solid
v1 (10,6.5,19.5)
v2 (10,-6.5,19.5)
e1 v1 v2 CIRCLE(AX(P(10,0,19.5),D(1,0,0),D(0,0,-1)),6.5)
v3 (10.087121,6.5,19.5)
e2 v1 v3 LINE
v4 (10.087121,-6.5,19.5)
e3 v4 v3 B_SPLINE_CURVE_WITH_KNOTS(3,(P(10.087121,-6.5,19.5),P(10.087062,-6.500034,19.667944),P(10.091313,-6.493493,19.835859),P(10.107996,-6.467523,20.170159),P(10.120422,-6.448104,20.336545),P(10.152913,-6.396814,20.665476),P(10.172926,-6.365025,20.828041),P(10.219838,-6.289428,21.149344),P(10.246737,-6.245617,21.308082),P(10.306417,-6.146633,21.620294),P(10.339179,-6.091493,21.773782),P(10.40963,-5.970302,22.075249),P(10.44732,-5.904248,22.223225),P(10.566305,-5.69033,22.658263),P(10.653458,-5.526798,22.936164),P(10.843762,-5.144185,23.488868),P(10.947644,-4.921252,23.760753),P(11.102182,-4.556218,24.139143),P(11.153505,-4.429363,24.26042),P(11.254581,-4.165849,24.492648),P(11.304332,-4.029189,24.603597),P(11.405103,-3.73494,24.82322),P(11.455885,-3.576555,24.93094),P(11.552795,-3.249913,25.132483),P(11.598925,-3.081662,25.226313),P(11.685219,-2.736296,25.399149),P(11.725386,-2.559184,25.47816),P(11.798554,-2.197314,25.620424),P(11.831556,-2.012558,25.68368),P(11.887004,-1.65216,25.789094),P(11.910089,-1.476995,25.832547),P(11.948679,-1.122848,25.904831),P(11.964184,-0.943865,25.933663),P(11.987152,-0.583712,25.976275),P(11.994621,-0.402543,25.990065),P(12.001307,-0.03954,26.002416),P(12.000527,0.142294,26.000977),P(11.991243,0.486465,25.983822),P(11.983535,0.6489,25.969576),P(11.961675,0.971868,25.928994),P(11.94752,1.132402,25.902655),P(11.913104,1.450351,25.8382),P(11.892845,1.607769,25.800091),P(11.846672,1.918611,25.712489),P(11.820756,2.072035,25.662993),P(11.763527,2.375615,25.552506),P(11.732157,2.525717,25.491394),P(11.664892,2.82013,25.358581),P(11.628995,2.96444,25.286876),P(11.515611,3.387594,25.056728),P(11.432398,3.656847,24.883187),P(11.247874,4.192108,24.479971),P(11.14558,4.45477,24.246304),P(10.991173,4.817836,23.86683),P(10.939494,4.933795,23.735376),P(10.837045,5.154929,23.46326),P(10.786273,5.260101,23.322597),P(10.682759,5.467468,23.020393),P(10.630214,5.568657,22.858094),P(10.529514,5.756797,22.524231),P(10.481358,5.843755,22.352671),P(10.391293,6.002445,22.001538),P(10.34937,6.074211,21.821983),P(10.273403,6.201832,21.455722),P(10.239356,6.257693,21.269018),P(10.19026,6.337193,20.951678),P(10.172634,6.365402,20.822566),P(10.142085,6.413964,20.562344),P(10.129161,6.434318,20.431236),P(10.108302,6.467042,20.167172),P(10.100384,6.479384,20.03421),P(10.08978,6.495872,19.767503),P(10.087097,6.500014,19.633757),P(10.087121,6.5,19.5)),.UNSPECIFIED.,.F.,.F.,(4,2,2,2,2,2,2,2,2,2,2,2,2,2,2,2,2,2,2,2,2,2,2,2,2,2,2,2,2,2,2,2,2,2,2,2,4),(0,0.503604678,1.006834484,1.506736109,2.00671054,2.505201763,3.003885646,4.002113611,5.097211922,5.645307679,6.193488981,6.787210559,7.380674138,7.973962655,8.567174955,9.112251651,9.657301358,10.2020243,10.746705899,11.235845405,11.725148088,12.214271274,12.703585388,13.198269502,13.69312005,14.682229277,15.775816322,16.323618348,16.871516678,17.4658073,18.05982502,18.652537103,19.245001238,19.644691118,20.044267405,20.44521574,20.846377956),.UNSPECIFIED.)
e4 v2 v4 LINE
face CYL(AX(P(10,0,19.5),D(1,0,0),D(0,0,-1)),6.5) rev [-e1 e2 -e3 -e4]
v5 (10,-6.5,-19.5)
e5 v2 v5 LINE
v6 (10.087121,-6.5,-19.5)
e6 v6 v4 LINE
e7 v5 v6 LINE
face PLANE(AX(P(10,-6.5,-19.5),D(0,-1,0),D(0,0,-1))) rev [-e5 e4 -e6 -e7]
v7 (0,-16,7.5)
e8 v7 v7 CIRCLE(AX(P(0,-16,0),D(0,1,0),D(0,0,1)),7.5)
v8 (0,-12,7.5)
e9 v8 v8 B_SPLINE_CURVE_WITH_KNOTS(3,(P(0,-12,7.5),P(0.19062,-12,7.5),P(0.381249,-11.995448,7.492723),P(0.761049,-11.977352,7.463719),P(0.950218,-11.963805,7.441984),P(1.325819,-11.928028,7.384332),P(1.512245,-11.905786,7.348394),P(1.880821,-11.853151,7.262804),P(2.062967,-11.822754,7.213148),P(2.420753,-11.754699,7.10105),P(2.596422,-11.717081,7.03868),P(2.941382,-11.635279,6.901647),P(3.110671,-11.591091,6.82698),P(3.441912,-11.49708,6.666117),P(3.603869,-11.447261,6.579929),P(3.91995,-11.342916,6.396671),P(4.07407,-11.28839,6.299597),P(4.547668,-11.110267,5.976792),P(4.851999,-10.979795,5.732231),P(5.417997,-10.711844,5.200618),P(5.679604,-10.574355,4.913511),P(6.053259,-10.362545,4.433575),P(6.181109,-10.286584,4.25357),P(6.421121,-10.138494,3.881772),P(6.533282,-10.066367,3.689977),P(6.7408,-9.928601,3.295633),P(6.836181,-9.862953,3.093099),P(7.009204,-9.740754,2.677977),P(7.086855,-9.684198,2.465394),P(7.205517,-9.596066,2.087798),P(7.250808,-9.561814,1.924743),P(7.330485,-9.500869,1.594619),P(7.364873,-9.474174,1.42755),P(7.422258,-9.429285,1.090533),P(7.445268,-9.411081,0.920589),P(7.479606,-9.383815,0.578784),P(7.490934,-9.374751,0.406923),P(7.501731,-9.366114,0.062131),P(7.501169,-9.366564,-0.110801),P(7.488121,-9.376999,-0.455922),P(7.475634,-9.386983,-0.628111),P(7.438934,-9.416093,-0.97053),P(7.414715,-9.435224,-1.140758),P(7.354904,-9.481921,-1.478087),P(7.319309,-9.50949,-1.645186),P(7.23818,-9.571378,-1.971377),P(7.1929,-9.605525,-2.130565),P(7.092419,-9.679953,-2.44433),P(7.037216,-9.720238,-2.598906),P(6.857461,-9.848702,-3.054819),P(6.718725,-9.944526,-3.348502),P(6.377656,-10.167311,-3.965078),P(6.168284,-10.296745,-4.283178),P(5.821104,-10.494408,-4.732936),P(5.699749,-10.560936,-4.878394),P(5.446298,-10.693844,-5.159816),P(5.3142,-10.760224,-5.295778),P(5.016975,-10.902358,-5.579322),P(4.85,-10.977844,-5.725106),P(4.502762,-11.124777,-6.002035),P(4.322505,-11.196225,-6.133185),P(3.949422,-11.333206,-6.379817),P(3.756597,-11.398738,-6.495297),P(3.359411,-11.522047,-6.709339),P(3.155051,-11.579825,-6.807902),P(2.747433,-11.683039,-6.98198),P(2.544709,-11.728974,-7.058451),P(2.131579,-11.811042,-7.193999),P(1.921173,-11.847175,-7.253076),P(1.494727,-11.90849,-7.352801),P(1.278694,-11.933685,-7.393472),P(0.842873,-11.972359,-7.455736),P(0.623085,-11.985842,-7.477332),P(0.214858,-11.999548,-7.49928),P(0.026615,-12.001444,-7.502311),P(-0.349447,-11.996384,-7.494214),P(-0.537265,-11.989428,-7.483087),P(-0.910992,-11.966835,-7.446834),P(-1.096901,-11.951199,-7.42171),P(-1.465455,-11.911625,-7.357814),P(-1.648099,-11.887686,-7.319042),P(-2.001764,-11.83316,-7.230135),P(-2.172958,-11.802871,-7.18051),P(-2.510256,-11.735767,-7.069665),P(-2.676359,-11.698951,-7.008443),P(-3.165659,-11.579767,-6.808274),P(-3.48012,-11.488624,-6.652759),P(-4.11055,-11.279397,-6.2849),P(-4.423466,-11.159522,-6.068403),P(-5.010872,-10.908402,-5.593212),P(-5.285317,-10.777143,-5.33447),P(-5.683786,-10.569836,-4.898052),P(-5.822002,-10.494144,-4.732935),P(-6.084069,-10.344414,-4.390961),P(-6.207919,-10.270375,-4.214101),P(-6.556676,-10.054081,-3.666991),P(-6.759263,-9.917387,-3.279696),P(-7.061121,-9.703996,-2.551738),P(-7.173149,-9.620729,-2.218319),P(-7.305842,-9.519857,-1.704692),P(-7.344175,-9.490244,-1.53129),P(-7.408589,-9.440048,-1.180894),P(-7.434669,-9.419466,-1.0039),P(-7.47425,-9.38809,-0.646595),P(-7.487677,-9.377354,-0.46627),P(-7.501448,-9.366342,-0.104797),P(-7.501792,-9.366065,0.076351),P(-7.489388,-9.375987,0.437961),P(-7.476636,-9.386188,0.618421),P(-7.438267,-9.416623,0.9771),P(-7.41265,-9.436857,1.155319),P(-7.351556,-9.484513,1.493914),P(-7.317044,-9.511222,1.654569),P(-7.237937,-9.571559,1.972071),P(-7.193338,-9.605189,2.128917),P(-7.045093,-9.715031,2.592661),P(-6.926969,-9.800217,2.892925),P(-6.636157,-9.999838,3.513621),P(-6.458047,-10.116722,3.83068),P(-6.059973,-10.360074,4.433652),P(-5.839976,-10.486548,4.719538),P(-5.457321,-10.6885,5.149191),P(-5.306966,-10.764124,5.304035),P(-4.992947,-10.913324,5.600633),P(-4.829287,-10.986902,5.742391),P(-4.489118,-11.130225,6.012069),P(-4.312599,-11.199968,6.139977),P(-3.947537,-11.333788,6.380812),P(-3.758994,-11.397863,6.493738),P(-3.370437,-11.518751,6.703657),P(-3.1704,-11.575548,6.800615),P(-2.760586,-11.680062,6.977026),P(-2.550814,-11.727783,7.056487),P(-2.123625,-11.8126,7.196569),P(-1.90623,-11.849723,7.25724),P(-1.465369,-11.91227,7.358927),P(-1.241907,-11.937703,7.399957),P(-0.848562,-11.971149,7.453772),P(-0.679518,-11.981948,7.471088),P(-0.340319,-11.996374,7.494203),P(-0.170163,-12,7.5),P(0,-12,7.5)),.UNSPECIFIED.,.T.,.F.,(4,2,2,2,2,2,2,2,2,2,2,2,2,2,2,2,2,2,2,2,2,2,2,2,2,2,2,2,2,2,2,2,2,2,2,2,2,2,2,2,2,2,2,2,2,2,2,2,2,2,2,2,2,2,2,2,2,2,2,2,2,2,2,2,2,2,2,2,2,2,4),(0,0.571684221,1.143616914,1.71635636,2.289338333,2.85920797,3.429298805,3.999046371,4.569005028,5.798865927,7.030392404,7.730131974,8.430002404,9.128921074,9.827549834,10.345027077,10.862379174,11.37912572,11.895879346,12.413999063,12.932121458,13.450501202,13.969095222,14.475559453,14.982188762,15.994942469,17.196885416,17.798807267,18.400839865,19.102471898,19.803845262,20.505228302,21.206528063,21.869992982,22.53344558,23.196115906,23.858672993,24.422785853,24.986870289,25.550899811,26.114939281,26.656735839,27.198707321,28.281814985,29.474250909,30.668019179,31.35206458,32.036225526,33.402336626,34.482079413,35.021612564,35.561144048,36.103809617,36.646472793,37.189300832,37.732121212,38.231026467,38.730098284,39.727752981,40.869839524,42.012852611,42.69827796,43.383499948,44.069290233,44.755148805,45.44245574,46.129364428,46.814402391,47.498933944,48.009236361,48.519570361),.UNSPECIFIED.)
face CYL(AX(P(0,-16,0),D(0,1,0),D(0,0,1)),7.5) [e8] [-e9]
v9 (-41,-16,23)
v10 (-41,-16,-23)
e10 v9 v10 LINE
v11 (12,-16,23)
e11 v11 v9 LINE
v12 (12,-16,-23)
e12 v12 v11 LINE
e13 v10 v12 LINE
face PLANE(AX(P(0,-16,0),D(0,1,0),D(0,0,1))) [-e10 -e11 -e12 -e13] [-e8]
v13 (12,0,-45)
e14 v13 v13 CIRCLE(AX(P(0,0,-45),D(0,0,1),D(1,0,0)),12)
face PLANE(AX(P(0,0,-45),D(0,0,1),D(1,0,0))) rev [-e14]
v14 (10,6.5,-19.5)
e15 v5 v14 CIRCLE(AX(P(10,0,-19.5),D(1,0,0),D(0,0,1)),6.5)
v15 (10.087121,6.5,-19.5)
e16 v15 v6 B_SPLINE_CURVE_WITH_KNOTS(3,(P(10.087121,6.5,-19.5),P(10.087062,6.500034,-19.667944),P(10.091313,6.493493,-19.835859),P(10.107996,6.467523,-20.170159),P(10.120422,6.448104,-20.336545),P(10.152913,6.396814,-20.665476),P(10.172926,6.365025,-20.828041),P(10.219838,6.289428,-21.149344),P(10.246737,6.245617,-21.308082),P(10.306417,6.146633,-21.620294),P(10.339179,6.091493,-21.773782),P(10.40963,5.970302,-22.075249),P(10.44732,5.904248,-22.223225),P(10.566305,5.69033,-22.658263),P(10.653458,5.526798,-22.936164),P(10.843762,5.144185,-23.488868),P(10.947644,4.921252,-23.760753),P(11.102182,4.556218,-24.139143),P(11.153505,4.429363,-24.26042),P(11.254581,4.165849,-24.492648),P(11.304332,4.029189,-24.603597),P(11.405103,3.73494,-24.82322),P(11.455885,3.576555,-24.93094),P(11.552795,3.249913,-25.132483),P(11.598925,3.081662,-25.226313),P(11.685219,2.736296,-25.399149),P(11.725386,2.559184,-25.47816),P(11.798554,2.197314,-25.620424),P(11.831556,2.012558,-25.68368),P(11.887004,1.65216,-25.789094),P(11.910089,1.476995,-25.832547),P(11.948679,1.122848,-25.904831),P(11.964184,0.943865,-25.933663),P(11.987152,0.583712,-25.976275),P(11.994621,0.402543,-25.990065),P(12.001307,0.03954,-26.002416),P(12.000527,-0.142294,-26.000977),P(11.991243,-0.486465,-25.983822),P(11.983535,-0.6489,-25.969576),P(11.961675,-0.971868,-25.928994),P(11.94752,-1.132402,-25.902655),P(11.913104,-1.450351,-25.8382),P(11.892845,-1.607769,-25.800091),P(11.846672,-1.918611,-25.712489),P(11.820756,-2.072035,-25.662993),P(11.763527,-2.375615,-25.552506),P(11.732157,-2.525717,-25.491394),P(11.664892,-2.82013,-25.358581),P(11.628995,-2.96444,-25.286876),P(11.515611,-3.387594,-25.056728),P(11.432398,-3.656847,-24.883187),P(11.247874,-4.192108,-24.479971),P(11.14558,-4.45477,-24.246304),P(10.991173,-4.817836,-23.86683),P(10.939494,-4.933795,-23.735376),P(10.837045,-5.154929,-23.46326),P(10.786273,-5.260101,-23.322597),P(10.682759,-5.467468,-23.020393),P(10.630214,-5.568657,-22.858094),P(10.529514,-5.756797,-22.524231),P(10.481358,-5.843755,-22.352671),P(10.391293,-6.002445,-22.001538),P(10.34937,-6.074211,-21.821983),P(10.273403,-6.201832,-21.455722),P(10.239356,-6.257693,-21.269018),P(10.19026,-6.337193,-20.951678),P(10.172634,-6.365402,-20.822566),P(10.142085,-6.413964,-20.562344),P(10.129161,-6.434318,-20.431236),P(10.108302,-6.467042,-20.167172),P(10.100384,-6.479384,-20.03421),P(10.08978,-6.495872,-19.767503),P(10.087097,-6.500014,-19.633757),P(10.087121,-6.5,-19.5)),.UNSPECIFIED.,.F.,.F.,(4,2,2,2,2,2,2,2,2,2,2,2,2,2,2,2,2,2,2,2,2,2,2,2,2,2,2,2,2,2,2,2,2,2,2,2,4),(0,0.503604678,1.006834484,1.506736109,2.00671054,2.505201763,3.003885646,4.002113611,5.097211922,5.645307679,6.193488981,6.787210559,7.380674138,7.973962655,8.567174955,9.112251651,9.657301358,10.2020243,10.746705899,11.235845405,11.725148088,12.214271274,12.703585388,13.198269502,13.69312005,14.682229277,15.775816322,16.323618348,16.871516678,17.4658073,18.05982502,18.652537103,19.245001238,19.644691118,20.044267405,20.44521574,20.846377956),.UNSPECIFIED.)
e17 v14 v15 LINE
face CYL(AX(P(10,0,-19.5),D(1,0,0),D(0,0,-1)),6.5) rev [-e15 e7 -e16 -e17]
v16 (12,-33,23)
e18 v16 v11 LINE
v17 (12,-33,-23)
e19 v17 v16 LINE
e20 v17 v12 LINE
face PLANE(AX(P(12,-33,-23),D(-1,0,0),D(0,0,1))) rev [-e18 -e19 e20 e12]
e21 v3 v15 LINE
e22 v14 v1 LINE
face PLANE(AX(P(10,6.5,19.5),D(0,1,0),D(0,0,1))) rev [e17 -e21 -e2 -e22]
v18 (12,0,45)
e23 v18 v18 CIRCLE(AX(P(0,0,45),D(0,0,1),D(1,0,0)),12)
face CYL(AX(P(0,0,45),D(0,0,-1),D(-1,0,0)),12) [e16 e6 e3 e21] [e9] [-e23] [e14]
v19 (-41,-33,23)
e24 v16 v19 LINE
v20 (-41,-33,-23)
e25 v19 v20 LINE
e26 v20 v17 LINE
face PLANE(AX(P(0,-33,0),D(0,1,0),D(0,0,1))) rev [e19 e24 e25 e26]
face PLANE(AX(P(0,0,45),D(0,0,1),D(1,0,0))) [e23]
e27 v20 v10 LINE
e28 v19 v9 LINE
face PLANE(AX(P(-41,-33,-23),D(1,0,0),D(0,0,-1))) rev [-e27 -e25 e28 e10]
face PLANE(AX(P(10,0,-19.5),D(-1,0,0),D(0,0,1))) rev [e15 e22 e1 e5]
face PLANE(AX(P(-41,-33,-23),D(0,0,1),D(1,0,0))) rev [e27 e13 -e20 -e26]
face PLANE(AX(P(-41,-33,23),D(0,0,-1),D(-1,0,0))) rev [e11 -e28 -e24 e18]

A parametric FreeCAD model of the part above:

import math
import FreeCAD as App
import Part
import Sketcher

V = App.Vector
Q = App.Units.Quantity

doc = App.newDocument("Part")
params = doc.addObject("Spreadsheet::Sheet", "Params")
for row, (alias, value) in enumerate([
    ("sketch1_diameter", "24 mm"),
    ("pad1_length", "90 mm"),
    ("sketch2_diameter", "15 mm"),
    ("pad2_length", "16 mm"),
    ("sketch3_width", "53 mm"),
    ("sketch3_height", "46 mm"),
    ("pad3_length", "17 mm"),
    ("sketch4_radius", "6.5 mm"),
    ("sketch4_height", "39 mm"),
    ("pocket1_length", "2 mm"),
], start=1):
    params.set(f"A{row}", alias)
    params.set(f"B{row}", "=" + value)
    params.setAlias(f"B{row}", alias)

body = doc.addObject("PartDesign::Body", "Body")

sketch1 = body.newObject("Sketcher::SketchObject", "Sketch")
sketch1.AttachmentSupport = (doc.getObject("XY_Plane"), [""])
sketch1.MapMode = "FlatFace"
sketch1.addGeometry(Part.Circle(V(0, 0, 0), V(0, 0, 1), 12), False)
sketch1.addConstraint(Sketcher.Constraint("Coincident", 0, 3, -1, 1))
sketch1.addConstraint(Sketcher.Constraint("Diameter", 0, Q("24 mm")))
sketch1.setExpression("Constraints[1]", "Params.sketch1_diameter")
pad1 = body.newObject("PartDesign::Pad", "Pad")
pad1.Profile = sketch1
pad1.setExpression("Length", "Params.pad1_length")
pad1.Midplane = True

sketch2 = body.newObject("Sketcher::SketchObject", "Sketch001")
sketch2.AttachmentSupport = (doc.getObject("XZ_Plane"), [""])
sketch2.MapMode = "FlatFace"
sketch2.addGeometry(Part.Circle(V(0, 0, 0), V(0, 0, 1), 8), False)
sketch2.addConstraint(Sketcher.Constraint("Coincident", 0, 3, -1, 1))
sketch2.addConstraint(Sketcher.Constraint("Diameter", 0, Q("15 mm")))
sketch2.setExpression("Constraints[1]", "Params.sketch2_diameter")
pad2 = body.newObject("PartDesign::Pad", "Pad001")
pad2.Profile = sketch2
pad2.setExpression("Length", "Params.pad2_length")

sketch3 = body.newObject("Sketcher::SketchObject", "Sketch002")
sketch3.AttachmentSupport = (doc.getObject("XZ_Plane"), [""])
sketch3.MapMode = "FlatFace"
sketch3.AttachmentOffset = App.Placement(V(0, 0, 16), App.Rotation())
sketch3.addGeometry(Part.LineSegment(V(-41, 23, 0), V(-41, -23, 0)), False)
sketch3.addGeometry(Part.LineSegment(V(-41, -23, 0), V(12, -23, 0)), False)
sketch3.addGeometry(Part.LineSegment(V(12, -23, 0), V(12, 23, 0)), False)
sketch3.addGeometry(Part.LineSegment(V(12, 23, 0), V(-41, 23, 0)), False)
sketch3.addConstraint(Sketcher.Constraint("Coincident", 0, 2, 1, 1))
sketch3.addConstraint(Sketcher.Constraint("Coincident", 1, 2, 2, 1))
sketch3.addConstraint(Sketcher.Constraint("Coincident", 2, 2, 3, 1))
sketch3.addConstraint(Sketcher.Constraint("Coincident", 3, 2, 0, 1))
sketch3.addConstraint(Sketcher.Constraint("Vertical", 0))
sketch3.addConstraint(Sketcher.Constraint("Horizontal", 1))
sketch3.addConstraint(Sketcher.Constraint("Vertical", 2))
sketch3.addConstraint(Sketcher.Constraint("Horizontal", 3))
sketch3.addConstraint(Sketcher.Constraint("DistanceX", 1, 1, 1, 2, Q("53 mm")))
sketch3.addConstraint(Sketcher.Constraint("DistanceY", 0, 2, 0, 1, Q("46 mm")))
sketch3.addConstraint(Sketcher.Constraint("DistanceX", 0, 2, -1, 1, Q("41 mm")))
sketch3.addConstraint(Sketcher.Constraint("DistanceY", 0, 2, -1, 1, Q("23 mm")))
sketch3.setExpression("Constraints[8]", "Params.sketch3_width")
sketch3.setExpression("Constraints[9]", "Params.sketch3_height")
pad3 = body.newObject("PartDesign::Pad", "Pad002")
pad3.Profile = sketch3
pad3.setExpression("Length", "Params.pad3_length")

sketch4 = body.newObject("Sketcher::SketchObject", "Sketch003")
sketch4.AttachmentSupport = (doc.getObject("YZ_Plane"), [""])
sketch4.MapMode = "FlatFace"
sketch4.AttachmentOffset = App.Placement(V(0, 0, 12), App.Rotation())
sketch4.addGeometry(Part.LineSegment(V(6, -20, 0), V(6, 20, 0)), False)
sketch4.addGeometry(Part.ArcOfCircle(Part.Circle(V(0, 20, 0), V(0, 0, 1), 6), math.radians(0), math.radians(180)), False)
sketch4.addGeometry(Part.LineSegment(V(-6, 20, 0), V(-6, -20, 0)), False)
sketch4.addGeometry(Part.ArcOfCircle(Part.Circle(V(0, -20, 0), V(0, 0, 1), 6), math.radians(180), math.radians(360)), False)
sketch4.addConstraint(Sketcher.Constraint("Tangent", 0, 2, 1, 1))
sketch4.addConstraint(Sketcher.Constraint("Tangent", 1, 2, 2, 1))
sketch4.addConstraint(Sketcher.Constraint("Tangent", 2, 2, 3, 1))
sketch4.addConstraint(Sketcher.Constraint("Tangent", 3, 2, 0, 1))
sketch4.addConstraint(Sketcher.Constraint("Vertical", 0))
sketch4.addConstraint(Sketcher.Constraint("Vertical", 2))
sketch4.addConstraint(Sketcher.Constraint("Symmetric", 1, 3, 3, 3, -1, 1))
sketch4.addConstraint(Sketcher.Constraint("Radius", 1, Q("6.5 mm")))
sketch4.addConstraint(Sketcher.Constraint("DistanceY", 0, 1, 0, 2, Q("39 mm")))
sketch4.setExpression("Constraints[7]", "Params.sketch4_radius")
sketch4.setExpression("Constraints[8]", "Params.sketch4_height")
pocket1 = body.newObject("PartDesign::Pocket", "Pocket")
pocket1.Profile = sketch4
pocket1.setExpression("Length", "Params.pocket1_length")

doc.recompute()
